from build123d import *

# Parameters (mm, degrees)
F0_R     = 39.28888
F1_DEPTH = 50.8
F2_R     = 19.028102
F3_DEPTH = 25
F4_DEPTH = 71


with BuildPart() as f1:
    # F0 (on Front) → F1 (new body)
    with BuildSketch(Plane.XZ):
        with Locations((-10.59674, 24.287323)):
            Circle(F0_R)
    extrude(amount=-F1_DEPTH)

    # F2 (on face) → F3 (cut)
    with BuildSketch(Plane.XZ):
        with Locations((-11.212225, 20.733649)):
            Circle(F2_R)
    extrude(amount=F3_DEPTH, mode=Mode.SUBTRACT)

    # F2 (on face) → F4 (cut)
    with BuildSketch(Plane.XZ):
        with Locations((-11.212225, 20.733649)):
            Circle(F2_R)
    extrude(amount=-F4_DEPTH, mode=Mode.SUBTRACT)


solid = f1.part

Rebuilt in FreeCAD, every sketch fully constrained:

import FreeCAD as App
import Part
import Sketcher
Q = App.Units.Quantity

doc = App.newDocument("Part")
body = doc.addObject("PartDesign::Body", "Body")

sketch1 = body.newObject("Sketcher::SketchObject", "Sketch")
sketch1.AttachmentSupport = (doc.getObject("XZ_Plane"), [""])
sketch1.MapMode = "FlatFace"
sketch1.addGeometry(Part.Circle(App.Vector(-11, 24, 0), App.Vector(0, 0, 1), 39), False)
sketch1.addConstraint([
    Sketcher.Constraint("Diameter", 0, Q("78.57776 mm")),
    Sketcher.Constraint("DistanceX", 0, 3, -1, 1, Q("10.59674 mm")),
    Sketcher.Constraint("DistanceY", -1, 1, 0, 3, Q("24.287323 mm")),
])
pad1 = body.newObject("PartDesign::Pad", "Pad")
pad1.Profile = sketch1
pad1.Length = 50.8
pad1.Reversed = True

sketch2 = body.newObject("Sketcher::SketchObject", "Sketch001")
sketch2.AttachmentSupport = (doc.getObject("XZ_Plane"), [""])
sketch2.MapMode = "FlatFace"
sketch2.addGeometry(Part.Circle(App.Vector(-11, 21, 0), App.Vector(0, 0, 1), 19), False)
sketch2.addConstraint([
    Sketcher.Constraint("Diameter", 0, Q("38.056204 mm")),
    Sketcher.Constraint("DistanceY", -1, 1, 0, 3, Q("20.733649 mm")),
    Sketcher.Constraint("DistanceX", 0, 3, -1, 1, Q("11.212225 mm")),
])
pocket1 = body.newObject("PartDesign::Pocket", "Pocket")
pocket1.Profile = sketch2
pocket1.Length = 25
pocket1.Reversed = True

sketch3 = body.newObject("Sketcher::SketchObject", "Sketch002")
sketch3.AttachmentSupport = (doc.getObject("XZ_Plane"), [""])
sketch3.MapMode = "FlatFace"
sketch3.addGeometry(Part.Circle(App.Vector(-11, 21, 0), App.Vector(0, 0, 1), 19), False)
sketch3.addConstraint([
    Sketcher.Constraint("Diameter", 0, Q("38.056204 mm")),
    Sketcher.Constraint("DistanceY", -1, 1, 0, 3, Q("20.733649 mm")),
    Sketcher.Constraint("DistanceX", 0, 3, -1, 1, Q("11.212225 mm")),
])
pocket2 = body.newObject("PartDesign::Pocket", "Pocket001")
pocket2.Profile = sketch3
pocket2.Length = 71

doc.recompute()
